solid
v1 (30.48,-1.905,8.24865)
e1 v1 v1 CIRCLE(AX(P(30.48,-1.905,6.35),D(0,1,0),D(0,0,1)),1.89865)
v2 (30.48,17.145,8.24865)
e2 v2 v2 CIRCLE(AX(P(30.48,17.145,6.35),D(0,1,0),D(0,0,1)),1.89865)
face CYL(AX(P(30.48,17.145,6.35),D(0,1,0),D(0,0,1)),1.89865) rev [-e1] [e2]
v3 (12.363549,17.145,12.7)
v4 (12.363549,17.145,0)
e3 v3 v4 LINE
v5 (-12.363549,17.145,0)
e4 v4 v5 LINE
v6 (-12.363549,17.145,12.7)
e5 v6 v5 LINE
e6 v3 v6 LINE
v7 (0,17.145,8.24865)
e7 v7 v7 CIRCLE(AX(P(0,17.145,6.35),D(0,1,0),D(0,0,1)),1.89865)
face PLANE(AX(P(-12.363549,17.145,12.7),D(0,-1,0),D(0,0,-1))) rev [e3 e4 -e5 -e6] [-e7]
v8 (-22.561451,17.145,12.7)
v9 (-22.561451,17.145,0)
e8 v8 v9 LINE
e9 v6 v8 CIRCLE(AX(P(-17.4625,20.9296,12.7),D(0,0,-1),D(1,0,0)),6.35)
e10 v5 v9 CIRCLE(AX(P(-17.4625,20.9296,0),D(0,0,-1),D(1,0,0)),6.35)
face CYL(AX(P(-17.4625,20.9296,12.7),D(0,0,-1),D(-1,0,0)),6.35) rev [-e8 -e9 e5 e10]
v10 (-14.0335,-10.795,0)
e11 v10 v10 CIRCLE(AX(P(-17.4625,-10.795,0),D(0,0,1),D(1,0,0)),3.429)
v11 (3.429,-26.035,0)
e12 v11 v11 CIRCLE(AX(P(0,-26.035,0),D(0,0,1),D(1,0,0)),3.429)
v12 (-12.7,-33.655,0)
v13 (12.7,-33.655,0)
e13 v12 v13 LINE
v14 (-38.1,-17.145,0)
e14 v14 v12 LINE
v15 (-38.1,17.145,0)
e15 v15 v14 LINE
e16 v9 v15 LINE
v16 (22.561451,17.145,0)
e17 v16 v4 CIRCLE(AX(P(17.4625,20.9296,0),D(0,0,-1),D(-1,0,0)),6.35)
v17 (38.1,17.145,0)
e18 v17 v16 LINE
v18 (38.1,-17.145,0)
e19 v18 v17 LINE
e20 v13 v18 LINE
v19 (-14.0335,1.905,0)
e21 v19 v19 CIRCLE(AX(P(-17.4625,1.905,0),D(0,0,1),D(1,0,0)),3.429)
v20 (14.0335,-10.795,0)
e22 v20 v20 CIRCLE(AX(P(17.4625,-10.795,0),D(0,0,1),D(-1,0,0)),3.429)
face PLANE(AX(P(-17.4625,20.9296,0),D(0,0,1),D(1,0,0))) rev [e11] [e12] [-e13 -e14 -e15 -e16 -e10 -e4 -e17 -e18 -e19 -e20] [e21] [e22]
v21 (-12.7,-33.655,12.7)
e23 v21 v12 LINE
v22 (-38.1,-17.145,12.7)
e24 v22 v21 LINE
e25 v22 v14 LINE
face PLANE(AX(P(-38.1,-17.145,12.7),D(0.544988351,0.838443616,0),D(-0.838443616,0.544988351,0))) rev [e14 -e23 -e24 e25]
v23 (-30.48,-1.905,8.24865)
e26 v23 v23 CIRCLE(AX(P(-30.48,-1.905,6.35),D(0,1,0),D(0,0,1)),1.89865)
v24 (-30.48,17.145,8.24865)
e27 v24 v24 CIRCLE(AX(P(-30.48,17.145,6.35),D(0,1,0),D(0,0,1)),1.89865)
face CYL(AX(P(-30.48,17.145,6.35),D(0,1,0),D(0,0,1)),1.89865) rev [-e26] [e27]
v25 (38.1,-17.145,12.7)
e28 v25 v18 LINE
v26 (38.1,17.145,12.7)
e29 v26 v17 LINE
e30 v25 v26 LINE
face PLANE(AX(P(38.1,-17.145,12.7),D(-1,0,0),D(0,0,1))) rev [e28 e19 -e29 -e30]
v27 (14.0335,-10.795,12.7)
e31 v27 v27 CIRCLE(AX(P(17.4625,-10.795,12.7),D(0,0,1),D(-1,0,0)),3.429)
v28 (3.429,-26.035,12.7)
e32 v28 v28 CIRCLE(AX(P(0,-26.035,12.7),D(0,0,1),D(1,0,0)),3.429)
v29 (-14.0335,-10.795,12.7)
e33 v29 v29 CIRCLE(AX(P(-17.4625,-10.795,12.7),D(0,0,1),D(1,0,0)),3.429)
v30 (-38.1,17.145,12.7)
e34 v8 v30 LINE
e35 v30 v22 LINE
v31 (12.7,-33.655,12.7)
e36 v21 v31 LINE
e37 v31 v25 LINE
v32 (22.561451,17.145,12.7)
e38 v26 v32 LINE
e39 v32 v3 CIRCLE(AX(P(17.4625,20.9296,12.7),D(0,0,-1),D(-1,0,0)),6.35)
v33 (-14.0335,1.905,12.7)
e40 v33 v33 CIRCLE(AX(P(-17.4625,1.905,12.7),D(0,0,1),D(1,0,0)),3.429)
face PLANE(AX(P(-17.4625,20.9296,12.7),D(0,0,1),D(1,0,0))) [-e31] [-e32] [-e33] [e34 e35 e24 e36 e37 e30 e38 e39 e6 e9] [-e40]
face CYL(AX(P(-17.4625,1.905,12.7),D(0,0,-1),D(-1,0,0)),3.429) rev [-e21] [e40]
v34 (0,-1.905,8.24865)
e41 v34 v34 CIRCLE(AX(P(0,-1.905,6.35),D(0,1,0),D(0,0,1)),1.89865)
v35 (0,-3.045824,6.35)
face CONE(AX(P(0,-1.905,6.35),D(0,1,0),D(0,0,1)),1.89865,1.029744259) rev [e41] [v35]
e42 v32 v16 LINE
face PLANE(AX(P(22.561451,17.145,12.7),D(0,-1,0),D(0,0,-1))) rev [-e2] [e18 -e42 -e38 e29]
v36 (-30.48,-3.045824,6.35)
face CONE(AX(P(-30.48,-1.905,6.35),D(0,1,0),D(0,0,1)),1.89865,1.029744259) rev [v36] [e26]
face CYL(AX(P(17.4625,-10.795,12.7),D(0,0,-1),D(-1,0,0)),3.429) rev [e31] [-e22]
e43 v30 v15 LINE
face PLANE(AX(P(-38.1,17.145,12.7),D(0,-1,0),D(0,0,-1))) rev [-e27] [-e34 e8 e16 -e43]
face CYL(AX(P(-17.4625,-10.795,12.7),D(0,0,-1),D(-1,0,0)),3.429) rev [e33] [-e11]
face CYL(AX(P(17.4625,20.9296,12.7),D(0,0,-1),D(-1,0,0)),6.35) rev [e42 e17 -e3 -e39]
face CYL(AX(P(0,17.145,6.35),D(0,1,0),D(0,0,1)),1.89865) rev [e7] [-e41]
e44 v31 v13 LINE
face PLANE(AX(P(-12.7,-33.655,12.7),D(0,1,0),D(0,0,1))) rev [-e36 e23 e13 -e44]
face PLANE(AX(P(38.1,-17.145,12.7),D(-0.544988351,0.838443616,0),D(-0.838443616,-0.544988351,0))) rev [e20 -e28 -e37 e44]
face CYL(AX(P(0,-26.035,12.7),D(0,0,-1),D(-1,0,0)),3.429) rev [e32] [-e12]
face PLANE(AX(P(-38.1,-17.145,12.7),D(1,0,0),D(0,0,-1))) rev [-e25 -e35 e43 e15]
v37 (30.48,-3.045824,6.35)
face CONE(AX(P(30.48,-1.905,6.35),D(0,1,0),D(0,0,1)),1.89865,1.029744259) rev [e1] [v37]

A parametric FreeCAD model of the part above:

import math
import FreeCAD as App
import Part
import Sketcher
from FreeCAD import Vector
Q = App.Units.Quantity

doc = App.newDocument("Part")
params = doc.addObject("Spreadsheet::Sheet", "Params")
for row, (alias, value) in enumerate([
    ("sketch1_diameter", "0.27 in"),
    ("sketch1_width", "1 in"),
    ("sketch1_radius", "0.25 in"),
    ("sketch1_height", "1.35 in"),
    ("pad1_length", "0.5 in"),
    ("hole_diameter", "0.1495 in"),
    ("hole_depth", "0.75 in"),
], start=1):
    params.set(f"A{row}", alias)
    params.set(f"B{row}", "=" + value)
    params.setAlias(f"B{row}", alias)

body = doc.addObject("PartDesign::Body", "Body")

# Sketch on XY plane
sketch1 = doc.addObject("Sketcher::SketchObject", "Sketch")
body.addObject(sketch1)
sketch1.AttachmentSupport = (doc.XY_Plane, [""])
sketch1.MapMode = "FlatFace"
sketch1.addGeometry([
    Part.LineSegment(Vector(-38.1, 17.1, 0), Vector(-38.1, -17.1, 0)),  # 0
    Part.LineSegment(Vector(-38.1, -17.1, 0), Vector(-12.7, -33.7, 0)),  # 1
    Part.LineSegment(Vector(-12.7, -33.7, 0), Vector(12.7, -33.7, 0)),  # 2
    Part.LineSegment(Vector(12.7, -33.7, 0), Vector(38.1, -17.1, 0)),  # 3
    Part.LineSegment(Vector(38.1, -17.1, 0), Vector(38.1, 17.1, 0)),  # 4
    Part.LineSegment(Vector(38.1, 17.1, 0), Vector(22.6, 17.1, 0)),  # 5
    Part.ArcOfCircle(Part.Circle(Vector(17.5, 20.9, 0), Vector(0, 0, 1), 6.3), math.radians(-143), math.radians(-37)),  # 6
    Part.LineSegment(Vector(12.4, 17.1, 0), Vector(-12.4, 17.1, 0)),  # 7
    Part.ArcOfCircle(Part.Circle(Vector(-17.5, 20.9, 0), Vector(0, 0, 1), 6.3), math.radians(-143), math.radians(-37)),  # 8
    Part.LineSegment(Vector(-22.6, 17.1, 0), Vector(-38.1, 17.1, 0)),  # 9
    Part.Circle(Vector(0, -26, 0), Vector(0, 0, 1), 3.4),  # 10
    Part.Circle(Vector(17.5, -10.8, 0), Vector(0, 0, 1), 3.4),  # 11
    Part.Circle(Vector(-17.5, -10.8, 0), Vector(0, 0, 1), 3.4),  # 12
    Part.Circle(Vector(-17.5, 1.9, 0), Vector(0, 0, 1), 3.4),  # 13
], False)
sketch1.addConstraint([
    Sketcher.Constraint("Coincident", 0, 2, 1, 1),
    Sketcher.Constraint("Coincident", 1, 2, 2, 1),
    Sketcher.Constraint("Coincident", 2, 2, 3, 1),
    Sketcher.Constraint("Coincident", 3, 2, 4, 1),
    Sketcher.Constraint("Coincident", 4, 2, 5, 1),
    Sketcher.Constraint("Coincident", 5, 2, 6, 2),
    Sketcher.Constraint("Coincident", 6, 1, 7, 1),
    Sketcher.Constraint("Coincident", 7, 2, 8, 2),
    Sketcher.Constraint("Coincident", 8, 1, 9, 1),
    Sketcher.Constraint("Coincident", 9, 2, 0, 1),
    Sketcher.Constraint("Vertical", 0),
    Sketcher.Constraint("Horizontal", 2),
    Sketcher.Constraint("Vertical", 4),
    Sketcher.Constraint("Horizontal", 5),
    Sketcher.Constraint("Horizontal", 7),
    Sketcher.Constraint("Horizontal", 9),
    Sketcher.Constraint("Equal", 6, 8),
    Sketcher.Constraint("Equal", 10, 11),
    Sketcher.Constraint("Equal", 11, 12),
    Sketcher.Constraint("Equal", 12, 13),
    Sketcher.Constraint("Symmetric", 0, 2, 4, 2, -1, 1),
    Sketcher.Constraint("Symmetric", 6, 3, 8, 3, -2),
    Sketcher.Constraint("Symmetric", 11, 3, 12, 3, -2),
    Sketcher.Constraint("PointOnObject", 10, 3, -2),
    Sketcher.Constraint("Horizontal", 0, 2, 3, 2),
    Sketcher.Constraint("Horizontal", 5, 2, 6, 1),
    Sketcher.Constraint("Horizontal", 7, 2, 8, 1),
    Sketcher.Constraint("Vertical", 6, 3, 11, 3),
    Sketcher.Constraint("Vertical", 12, 3, 13, 3),
    Sketcher.Constraint("Equal", 1, 3),
    Sketcher.Constraint("Diameter", 10, Q("0.27 in")),
    Sketcher.Constraint("DistanceX", 2, 1, 2, 2, Q("1 in")),
    Sketcher.Constraint("Radius", 6, Q("0.25 in")),
    Sketcher.Constraint("DistanceX", 0, 2, 1, 2, Q("1 in")),
    Sketcher.Constraint("DistanceY", 2, 2, 4, 2, Q("2 in")),
    Sketcher.Constraint("DistanceY", 0, 2, 0, 1, Q("1.35 in")),
    Sketcher.Constraint("DistanceY", 10, 3, 11, 3, Q("0.6 in")),
    Sketcher.Constraint("DistanceY", 12, 3, 13, 3, Q("0.5 in")),
    Sketcher.Constraint("DistanceY", 1, 2, 10, 3, Q("0.3 in")),
    Sketcher.Constraint("DistanceX", -1, 1, 6, 3, Q("0.6875 in")),
    Sketcher.Constraint("DistanceY", -1, 1, 6, 3, Q("0.824 in")),
])
sketch1.setExpression("Constraints[30]", "Params.sketch1_diameter")
sketch1.setExpression("Constraints[31]", "Params.sketch1_width")
sketch1.setExpression("Constraints[32]", "Params.sketch1_radius")
sketch1.setExpression("Constraints[35]", "Params.sketch1_height")
pad1 = doc.addObject("PartDesign::Pad", "Pad")
body.addObject(pad1)
pad1.Profile = sketch1
pad1.setExpression("Length", "Params.pad1_length")

# Sketch on XZ plane
sketch2 = doc.addObject("Sketcher::SketchObject", "Sketch001")
body.addObject(sketch2)
sketch2.AttachmentSupport = (doc.XZ_Plane, [""])
sketch2.MapMode = "FlatFace"
sketch2.AttachmentOffset = App.Placement(Vector(0, 0, -0.675 * 25.4), App.Rotation())
sketch2.addGeometry([
    Part.Circle(Vector(-30.5, 6.3, 0), Vector(0, 0, 1), 1.9),
    Part.Circle(Vector(0, 6.3, 0), Vector(0, 0, 1), 1.9),
    Part.Circle(Vector(30.5, 6.3, 0), Vector(0, 0, 1), 1.9),
], False)
sketch2.addConstraint([
    Sketcher.Constraint("Equal", 0, 1),
    Sketcher.Constraint("Equal", 1, 2),
    Sketcher.Constraint("Symmetric", 0, 3, 2, 3, -2),
    Sketcher.Constraint("PointOnObject", 1, 3, -2),
    Sketcher.Constraint("Horizontal", 0, 3, 1, 3),
    Sketcher.Constraint("Diameter", 0, Q("0.1495 in")),
    Sketcher.Constraint("DistanceX", 0, 3, -1, 1, Q("1.2 in")),
    Sketcher.Constraint("DistanceY", -1, 1, 0, 3, Q("0.25 in")),
])
doc.recompute()
hole = doc.addObject("PartDesign::Hole", "Hole")
body.addObject(hole)
hole.Profile = sketch2
hole.ThreadType = "None"
hole.setExpression("Diameter", "Params.hole_diameter")
hole.DepthType = "Dimension"
hole.setExpression("Depth", "Params.hole_depth")
hole.DrillPoint = "Angled"
hole.DrillPointAngle = 118
hole.Reversed = True

doc.recompute()
